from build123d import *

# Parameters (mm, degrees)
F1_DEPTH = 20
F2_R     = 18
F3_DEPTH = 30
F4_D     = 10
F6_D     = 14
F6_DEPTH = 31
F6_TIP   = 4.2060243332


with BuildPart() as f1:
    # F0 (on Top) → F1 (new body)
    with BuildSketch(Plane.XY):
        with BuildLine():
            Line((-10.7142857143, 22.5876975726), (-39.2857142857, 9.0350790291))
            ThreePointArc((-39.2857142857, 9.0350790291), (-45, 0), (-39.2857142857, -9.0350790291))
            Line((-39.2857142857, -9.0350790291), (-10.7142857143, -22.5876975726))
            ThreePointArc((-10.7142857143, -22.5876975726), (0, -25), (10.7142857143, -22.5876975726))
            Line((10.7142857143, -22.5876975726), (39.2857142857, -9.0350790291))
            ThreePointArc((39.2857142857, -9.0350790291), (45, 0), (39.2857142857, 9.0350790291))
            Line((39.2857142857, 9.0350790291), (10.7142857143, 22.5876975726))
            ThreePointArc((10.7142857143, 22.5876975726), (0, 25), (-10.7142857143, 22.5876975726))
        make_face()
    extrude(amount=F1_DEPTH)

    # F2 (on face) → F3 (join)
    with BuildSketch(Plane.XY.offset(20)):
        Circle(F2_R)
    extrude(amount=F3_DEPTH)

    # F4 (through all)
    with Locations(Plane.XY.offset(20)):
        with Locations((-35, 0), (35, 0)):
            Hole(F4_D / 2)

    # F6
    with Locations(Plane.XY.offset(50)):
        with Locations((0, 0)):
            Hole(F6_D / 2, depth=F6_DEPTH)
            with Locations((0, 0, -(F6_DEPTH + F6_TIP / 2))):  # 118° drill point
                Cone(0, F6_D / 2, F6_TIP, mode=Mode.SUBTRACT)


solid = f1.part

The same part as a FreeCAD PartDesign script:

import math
import FreeCAD as App
import Part
import Sketcher
from FreeCAD import Vector

doc = App.newDocument("Part")
body = doc.addObject("PartDesign::Body", "Body")

# Sketch on XY plane
sketch1 = doc.addObject("Sketcher::SketchObject", "Sketch")
body.addObject(sketch1)
sketch1.AttachmentSupport = (doc.XY_Plane, [""])
sketch1.MapMode = "FlatFace"
sketch1.addGeometry([
    Part.LineSegment(Vector(-11, 23, 0), Vector(-39, 9, 0)),  # 0
    Part.ArcOfCircle(Part.Circle(Vector(-35, 0, 0), Vector(0, 0, 1), 10), math.radians(115), math.radians(245)),  # 1
    Part.LineSegment(Vector(-39, -9, 0), Vector(-11, -23, 0)),  # 2
    Part.ArcOfCircle(Part.Circle(Vector(0, 0, 0), Vector(0, 0, 1), 25), math.radians(-115), math.radians(-65)),  # 3
    Part.LineSegment(Vector(11, -23, 0), Vector(39, -9, 0)),  # 4
    Part.ArcOfCircle(Part.Circle(Vector(35, 0, 0), Vector(0, 0, 1), 10), math.radians(-65), math.radians(65)),  # 5
    Part.LineSegment(Vector(39, 9, 0), Vector(11, 23, 0)),  # 6
    Part.ArcOfCircle(Part.Circle(Vector(0, 0, 0), Vector(0, 0, 1), 25), math.radians(65), math.radians(115)),  # 7
], False)
sketch1.addConstraint([
    Sketcher.Constraint("Tangent", 0, 2, 1, 1),
    Sketcher.Constraint("Tangent", 1, 2, 2, 1),
    Sketcher.Constraint("Tangent", 2, 2, 3, 1),
    Sketcher.Constraint("Tangent", 3, 2, 4, 1),
    Sketcher.Constraint("Tangent", 4, 2, 5, 1),
    Sketcher.Constraint("Tangent", 5, 2, 6, 1),
    Sketcher.Constraint("Tangent", 6, 2, 7, 1),
    Sketcher.Constraint("Tangent", 7, 2, 0, 1),
    Sketcher.Constraint("Coincident", 3, 3, -1, 1),
    Sketcher.Constraint("Coincident", 7, 3, -1, 1),
    Sketcher.Constraint("Equal", 1, 5),
    Sketcher.Constraint("Equal", 3, 7),
    Sketcher.Constraint("Symmetric", 1, 3, 5, 3, -1, 1),
    Sketcher.Constraint("PointOnObject", 1, 3, -1),
    Sketcher.Constraint("Radius", 1, 10.0),
    Sketcher.Constraint("Radius", 3, 25.0),
    Sketcher.Constraint("DistanceX", 1, 3, -1, 1, 35.0),
])
pad1 = doc.addObject("PartDesign::Pad", "Pad")
body.addObject(pad1)
pad1.Profile = sketch1
pad1.Length = 20

# Sketch on XY plane
sketch2 = doc.addObject("Sketcher::SketchObject", "Sketch001")
body.addObject(sketch2)
sketch2.AttachmentSupport = (doc.XY_Plane, [""])
sketch2.MapMode = "FlatFace"
sketch2.AttachmentOffset = App.Placement(Vector(0, 0, 20), App.Rotation())
sketch2.addGeometry(Part.Circle(Vector(0, 0, 0), Vector(0, 0, 1), 18), False)
sketch2.addConstraint([
    Sketcher.Constraint("Coincident", 0, 3, -1, 1),
    Sketcher.Constraint("Diameter", 0, 36.0),
])
pad2 = doc.addObject("PartDesign::Pad", "Pad001")
body.addObject(pad2)
pad2.Profile = sketch2
pad2.Length = 30

# Sketch on XY plane
sketch3 = doc.addObject("Sketcher::SketchObject", "Sketch002")
body.addObject(sketch3)
sketch3.AttachmentSupport = (doc.XY_Plane, [""])
sketch3.MapMode = "FlatFace"
sketch3.AttachmentOffset = App.Placement(Vector(0, 0, 20), App.Rotation())
sketch3.addGeometry([
    Part.Circle(Vector(-35, 0, 0), Vector(0, 0, 1), 5),
    Part.Circle(Vector(35, 0, 0), Vector(0, 0, 1), 5),
], False)
sketch3.addConstraint([
    Sketcher.Constraint("Equal", 0, 1),
    Sketcher.Constraint("Symmetric", 0, 3, 1, 3, -1, 1),
    Sketcher.Constraint("PointOnObject", 0, 3, -1),
    Sketcher.Constraint("Diameter", 0, 10.0),
    Sketcher.Constraint("DistanceX", 0, 3, -1, 1, 35.0),
])
doc.recompute()
hole = doc.addObject("PartDesign::Hole", "Hole")
body.addObject(hole)
hole.Profile = sketch3
hole.ThreadType = "None"
hole.Diameter = 10
hole.DepthType = "ThroughAll"

# Sketch on XY plane
sketch4 = doc.addObject("Sketcher::SketchObject", "Sketch003")
body.addObject(sketch4)
sketch4.AttachmentSupport = (doc.XY_Plane, [""])
sketch4.MapMode = "FlatFace"
sketch4.AttachmentOffset = App.Placement(Vector(0, 0, 50), App.Rotation())
sketch4.addGeometry(Part.Circle(Vector(0, 0, 0), Vector(0, 0, 1), 7), False)
sketch4.addConstraint([
    Sketcher.Constraint("Coincident", 0, 3, -1, 1),
    Sketcher.Constraint("Diameter", 0, 14.0),
])
doc.recompute()
hole2 = doc.addObject("PartDesign::Hole", "Hole001")
body.addObject(hole2)
hole2.Profile = sketch4
hole2.ThreadType = "None"
hole2.Diameter = 14
hole2.DepthType = "Dimension"
hole2.Depth = 31
hole2.DrillPoint = "Angled"
hole2.DrillPointAngle = 118

doc.recompute()
